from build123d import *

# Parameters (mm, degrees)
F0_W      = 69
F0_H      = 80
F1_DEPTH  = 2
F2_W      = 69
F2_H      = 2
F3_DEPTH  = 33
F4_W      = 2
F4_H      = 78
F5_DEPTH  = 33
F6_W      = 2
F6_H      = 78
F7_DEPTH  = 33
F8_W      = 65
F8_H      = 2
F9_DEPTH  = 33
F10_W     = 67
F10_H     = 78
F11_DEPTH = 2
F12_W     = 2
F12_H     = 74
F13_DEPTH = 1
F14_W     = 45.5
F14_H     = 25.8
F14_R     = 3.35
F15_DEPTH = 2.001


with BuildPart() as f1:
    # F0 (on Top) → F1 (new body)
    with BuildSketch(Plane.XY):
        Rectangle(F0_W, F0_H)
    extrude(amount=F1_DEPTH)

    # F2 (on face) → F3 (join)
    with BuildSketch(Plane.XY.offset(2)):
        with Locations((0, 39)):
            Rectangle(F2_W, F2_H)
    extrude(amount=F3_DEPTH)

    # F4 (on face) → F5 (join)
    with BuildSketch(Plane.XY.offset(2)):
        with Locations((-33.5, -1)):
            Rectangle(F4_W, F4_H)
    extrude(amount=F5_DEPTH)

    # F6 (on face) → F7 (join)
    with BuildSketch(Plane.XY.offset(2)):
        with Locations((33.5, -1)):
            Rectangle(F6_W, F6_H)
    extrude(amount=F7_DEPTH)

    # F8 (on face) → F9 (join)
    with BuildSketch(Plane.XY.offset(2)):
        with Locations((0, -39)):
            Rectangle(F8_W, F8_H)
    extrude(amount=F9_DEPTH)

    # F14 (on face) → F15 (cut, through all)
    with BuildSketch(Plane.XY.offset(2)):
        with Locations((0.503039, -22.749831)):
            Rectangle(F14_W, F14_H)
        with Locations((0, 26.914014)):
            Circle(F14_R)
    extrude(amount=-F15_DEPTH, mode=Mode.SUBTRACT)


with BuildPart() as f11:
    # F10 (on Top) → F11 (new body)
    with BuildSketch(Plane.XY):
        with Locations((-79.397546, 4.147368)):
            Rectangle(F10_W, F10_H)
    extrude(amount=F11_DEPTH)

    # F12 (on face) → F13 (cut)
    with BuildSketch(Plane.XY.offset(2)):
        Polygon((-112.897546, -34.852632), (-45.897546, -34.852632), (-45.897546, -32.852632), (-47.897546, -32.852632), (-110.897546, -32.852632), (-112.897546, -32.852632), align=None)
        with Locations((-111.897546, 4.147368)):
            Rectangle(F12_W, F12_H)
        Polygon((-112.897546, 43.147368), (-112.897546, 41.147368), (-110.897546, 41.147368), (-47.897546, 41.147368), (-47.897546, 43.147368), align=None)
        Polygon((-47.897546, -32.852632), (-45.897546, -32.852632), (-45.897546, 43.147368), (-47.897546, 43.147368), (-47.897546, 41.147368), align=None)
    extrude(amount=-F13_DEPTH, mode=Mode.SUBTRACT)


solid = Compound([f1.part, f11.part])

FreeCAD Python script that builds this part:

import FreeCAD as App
import Part
import Sketcher

V = App.Vector
Q = App.Units.Quantity


def add_polygon(sketch, points):
    """Adds a closed chain of lines whose ends are joined by coincident constraints."""
    first, n = sketch.GeometryCount, len(points)
    for a, b in zip(points, points[1:] + points[:1]):
        sketch.addGeometry(Part.LineSegment(App.Vector(*a, 0), App.Vector(*b, 0)), False)
    for i in range(n):
        sketch.addConstraint(Sketcher.Constraint("Coincident", first + i, 2, first + (i + 1) % n, 1))

doc = App.newDocument("Part")
body = doc.addObject("PartDesign::Body", "Body")

sketch1 = doc.addObject("Sketcher::SketchObject", "Sketch")
body.addObject(sketch1)
sketch1.AttachmentSupport = (doc.XY_Plane, [""])
sketch1.MapMode = "FlatFace"
add_polygon(sketch1, [(-34, 40), (-34, -40), (34, -40), (34, 40)])
sketch1.addConstraint([
    Sketcher.Constraint("Vertical", 0),
    Sketcher.Constraint("Horizontal", 1),
    Sketcher.Constraint("Vertical", 2),
    Sketcher.Constraint("Horizontal", 3),
    Sketcher.Constraint("Symmetric", 0, 2, 2, 2, -1, 1),
    Sketcher.Constraint("DistanceX", 1, 1, 1, 2, Q("69 mm")),
    Sketcher.Constraint("DistanceY", 0, 2, 0, 1, Q("80 mm")),
])
pad1 = doc.addObject("PartDesign::Pad", "Pad")
body.addObject(pad1)
pad1.Profile = sketch1
pad1.Length = 2

sketch2 = doc.addObject("Sketcher::SketchObject", "Sketch001")
body.addObject(sketch2)
sketch2.AttachmentSupport = (doc.XY_Plane, [""])
sketch2.MapMode = "FlatFace"
sketch2.AttachmentOffset = App.Placement(V(0, 0, 2), App.Rotation())
add_polygon(sketch2, [(-34.5, 40), (-34.5, 38), (34.5, 38), (34.5, 40)])
sketch2.addConstraint([
    Sketcher.Constraint("Vertical", 0),
    Sketcher.Constraint("Horizontal", 1),
    Sketcher.Constraint("Vertical", 2),
    Sketcher.Constraint("Horizontal", 3),
    Sketcher.Constraint("DistanceX", 1, 1, 1, 2, Q("69 mm")),
    Sketcher.Constraint("DistanceY", 0, 2, 0, 1, Q("2 mm")),
    Sketcher.Constraint("DistanceY", -1, 1, 0, 2, Q("38 mm")),
    Sketcher.Constraint("DistanceX", 0, 2, -1, 1, Q("34.5 mm")),
])
pad2 = doc.addObject("PartDesign::Pad", "Pad001")
body.addObject(pad2)
pad2.Profile = sketch2
pad2.Length = 33

sketch3 = doc.addObject("Sketcher::SketchObject", "Sketch002")
body.addObject(sketch3)
sketch3.AttachmentSupport = (doc.XY_Plane, [""])
sketch3.MapMode = "FlatFace"
sketch3.AttachmentOffset = App.Placement(V(0, 0, 2), App.Rotation())
add_polygon(sketch3, [(-34.5, 38), (-34.5, -40), (-32.5, -40), (-32.5, 38)])
sketch3.addConstraint([
    Sketcher.Constraint("Vertical", 0),
    Sketcher.Constraint("Horizontal", 1),
    Sketcher.Constraint("Vertical", 2),
    Sketcher.Constraint("Horizontal", 3),
    Sketcher.Constraint("DistanceX", 1, 1, 1, 2, Q("2 mm")),
    Sketcher.Constraint("DistanceY", 0, 2, 0, 1, Q("78 mm")),
    Sketcher.Constraint("DistanceY", 0, 2, -1, 1, Q("40 mm")),
    Sketcher.Constraint("DistanceX", 0, 2, -1, 1, Q("34.5 mm")),
])
pad3 = doc.addObject("PartDesign::Pad", "Pad002")
body.addObject(pad3)
pad3.Profile = sketch3
pad3.Length = 33

sketch4 = doc.addObject("Sketcher::SketchObject", "Sketch003")
body.addObject(sketch4)
sketch4.AttachmentSupport = (doc.XY_Plane, [""])
sketch4.MapMode = "FlatFace"
sketch4.AttachmentOffset = App.Placement(V(0, 0, 2), App.Rotation())
add_polygon(sketch4, [(32.5, 38), (32.5, -40), (34.5, -40), (34.5, 38)])
sketch4.addConstraint([
    Sketcher.Constraint("Vertical", 0),
    Sketcher.Constraint("Horizontal", 1),
    Sketcher.Constraint("Vertical", 2),
    Sketcher.Constraint("Horizontal", 3),
    Sketcher.Constraint("DistanceX", 1, 1, 1, 2, Q("2 mm")),
    Sketcher.Constraint("DistanceY", 0, 2, 0, 1, Q("78 mm")),
    Sketcher.Constraint("DistanceY", 0, 2, -1, 1, Q("40 mm")),
    Sketcher.Constraint("DistanceX", -1, 1, 0, 2, Q("32.5 mm")),
])
pad4 = doc.addObject("PartDesign::Pad", "Pad003")
body.addObject(pad4)
pad4.Profile = sketch4
pad4.Length = 33

sketch5 = doc.addObject("Sketcher::SketchObject", "Sketch004")
body.addObject(sketch5)
sketch5.AttachmentSupport = (doc.XY_Plane, [""])
sketch5.MapMode = "FlatFace"
sketch5.AttachmentOffset = App.Placement(V(0, 0, 2), App.Rotation())
add_polygon(sketch5, [(-32.5, -38), (-32.5, -40), (32.5, -40), (32.5, -38)])
sketch5.addConstraint([
    Sketcher.Constraint("Vertical", 0),
    Sketcher.Constraint("Horizontal", 1),
    Sketcher.Constraint("Vertical", 2),
    Sketcher.Constraint("Horizontal", 3),
    Sketcher.Constraint("DistanceX", 1, 1, 1, 2, Q("65 mm")),
    Sketcher.Constraint("DistanceY", 0, 2, 0, 1, Q("2 mm")),
    Sketcher.Constraint("DistanceY", 0, 2, -1, 1, Q("40 mm")),
    Sketcher.Constraint("DistanceX", 0, 2, -1, 1, Q("32.5 mm")),
])
pad5 = doc.addObject("PartDesign::Pad", "Pad004")
body.addObject(pad5)
pad5.Profile = sketch5
pad5.Length = 33

sketch6 = doc.addObject("Sketcher::SketchObject", "Sketch005")
body.addObject(sketch6)
sketch6.AttachmentSupport = (doc.XY_Plane, [""])
sketch6.MapMode = "FlatFace"
sketch6.AttachmentOffset = App.Placement(V(0, 0, 2), App.Rotation())
add_polygon(sketch6, [(-22.2, -9.8), (-22.2, -35.6), (23.3, -35.6), (23.3, -9.8)])
sketch6.addGeometry(Part.Circle(V(0, 26.9, 0), V(0, 0, 1), 3.4), False)
sketch6.addConstraint([
    Sketcher.Constraint("Vertical", 0),
    Sketcher.Constraint("Horizontal", 1),
    Sketcher.Constraint("Vertical", 2),
    Sketcher.Constraint("Horizontal", 3),
    Sketcher.Constraint("PointOnObject", 4, 3, -2),
    Sketcher.Constraint("Diameter", 4, Q("6.7 mm")),
    Sketcher.Constraint("DistanceX", 1, 1, 1, 2, Q("45.5 mm")),
    Sketcher.Constraint("DistanceY", 0, 2, 0, 1, Q("25.8 mm")),
    Sketcher.Constraint("DistanceX", 0, 2, -1, 1, Q("22.246961 mm")),
    Sketcher.Constraint("DistanceY", 0, 2, -1, 1, Q("35.649831 mm")),
    Sketcher.Constraint("DistanceY", -1, 1, 4, 3, Q("26.914014 mm")),
])
pocket1 = doc.addObject("PartDesign::Pocket", "Pocket")
body.addObject(pocket1)
pocket1.Profile = sketch6
pocket1.Type = "ThroughAll"
body2 = doc.addObject("PartDesign::Body", "Body001")

sketch7 = doc.addObject("Sketcher::SketchObject", "Sketch006")
body2.addObject(sketch7)
sketch7.AttachmentSupport = (doc.getObject("XY_Plane001"), [""])
sketch7.MapMode = "FlatFace"
add_polygon(sketch7, [(-113, 43), (-113, -35), (-46, -35), (-46, 43)])
sketch7.addConstraint([
    Sketcher.Constraint("Vertical", 0),
    Sketcher.Constraint("Horizontal", 1),
    Sketcher.Constraint("Vertical", 2),
    Sketcher.Constraint("Horizontal", 3),
    Sketcher.Constraint("DistanceX", 1, 1, 1, 2, Q("67 mm")),
    Sketcher.Constraint("DistanceY", 0, 2, 0, 1, Q("78 mm")),
    Sketcher.Constraint("DistanceX", 0, 2, -1, 1, Q("112.897546 mm")),
    Sketcher.Constraint("DistanceY", 0, 2, -1, 1, Q("34.852632 mm")),
])
pad6 = doc.addObject("PartDesign::Pad", "Pad005")
body2.addObject(pad6)
pad6.Profile = sketch7
pad6.Length = 2

sketch8 = doc.addObject("Sketcher::SketchObject", "Sketch007")
body2.addObject(sketch8)
sketch8.AttachmentSupport = (doc.getObject("XY_Plane001"), [""])
sketch8.MapMode = "FlatFace"
sketch8.AttachmentOffset = App.Placement(V(0, 0, 2), App.Rotation())
add_polygon(sketch8, [(-113, -35), (-46, -35), (-46, 43), (-113, 43)])
add_polygon(sketch8, [(-48, -33), (-111, -33), (-111, 41), (-48, 41)])
sketch8.addConstraint([
    Sketcher.Constraint("Horizontal", 0),
    Sketcher.Constraint("Vertical", 1),
    Sketcher.Constraint("Horizontal", 2),
    Sketcher.Constraint("Vertical", 3),
    Sketcher.Constraint("Horizontal", 4),
    Sketcher.Constraint("Vertical", 5),
    Sketcher.Constraint("Horizontal", 6),
    Sketcher.Constraint("Vertical", 7),
    Sketcher.Constraint("DistanceX", 0, 1, 0, 2, Q("67 mm")),
    Sketcher.Constraint("DistanceX", 4, 2, 4, 1, Q("63 mm")),
    Sketcher.Constraint("DistanceY", 1, 1, 1, 2, Q("78 mm")),
    Sketcher.Constraint("DistanceY", 5, 1, 5, 2, Q("74 mm")),
    Sketcher.Constraint("DistanceX", 3, 2, 4, 2, Q("2 mm")),
    Sketcher.Constraint("DistanceY", 3, 2, 4, 2, Q("2 mm")),
    Sketcher.Constraint("DistanceX", 0, 2, -1, 1, Q("45.897546 mm")),
    Sketcher.Constraint("DistanceY", 0, 2, -1, 1, Q("34.852632 mm")),
])
pocket2 = doc.addObject("PartDesign::Pocket", "Pocket001")
body2.addObject(pocket2)
pocket2.Profile = sketch8
pocket2.Length = 1

doc.recompute()
